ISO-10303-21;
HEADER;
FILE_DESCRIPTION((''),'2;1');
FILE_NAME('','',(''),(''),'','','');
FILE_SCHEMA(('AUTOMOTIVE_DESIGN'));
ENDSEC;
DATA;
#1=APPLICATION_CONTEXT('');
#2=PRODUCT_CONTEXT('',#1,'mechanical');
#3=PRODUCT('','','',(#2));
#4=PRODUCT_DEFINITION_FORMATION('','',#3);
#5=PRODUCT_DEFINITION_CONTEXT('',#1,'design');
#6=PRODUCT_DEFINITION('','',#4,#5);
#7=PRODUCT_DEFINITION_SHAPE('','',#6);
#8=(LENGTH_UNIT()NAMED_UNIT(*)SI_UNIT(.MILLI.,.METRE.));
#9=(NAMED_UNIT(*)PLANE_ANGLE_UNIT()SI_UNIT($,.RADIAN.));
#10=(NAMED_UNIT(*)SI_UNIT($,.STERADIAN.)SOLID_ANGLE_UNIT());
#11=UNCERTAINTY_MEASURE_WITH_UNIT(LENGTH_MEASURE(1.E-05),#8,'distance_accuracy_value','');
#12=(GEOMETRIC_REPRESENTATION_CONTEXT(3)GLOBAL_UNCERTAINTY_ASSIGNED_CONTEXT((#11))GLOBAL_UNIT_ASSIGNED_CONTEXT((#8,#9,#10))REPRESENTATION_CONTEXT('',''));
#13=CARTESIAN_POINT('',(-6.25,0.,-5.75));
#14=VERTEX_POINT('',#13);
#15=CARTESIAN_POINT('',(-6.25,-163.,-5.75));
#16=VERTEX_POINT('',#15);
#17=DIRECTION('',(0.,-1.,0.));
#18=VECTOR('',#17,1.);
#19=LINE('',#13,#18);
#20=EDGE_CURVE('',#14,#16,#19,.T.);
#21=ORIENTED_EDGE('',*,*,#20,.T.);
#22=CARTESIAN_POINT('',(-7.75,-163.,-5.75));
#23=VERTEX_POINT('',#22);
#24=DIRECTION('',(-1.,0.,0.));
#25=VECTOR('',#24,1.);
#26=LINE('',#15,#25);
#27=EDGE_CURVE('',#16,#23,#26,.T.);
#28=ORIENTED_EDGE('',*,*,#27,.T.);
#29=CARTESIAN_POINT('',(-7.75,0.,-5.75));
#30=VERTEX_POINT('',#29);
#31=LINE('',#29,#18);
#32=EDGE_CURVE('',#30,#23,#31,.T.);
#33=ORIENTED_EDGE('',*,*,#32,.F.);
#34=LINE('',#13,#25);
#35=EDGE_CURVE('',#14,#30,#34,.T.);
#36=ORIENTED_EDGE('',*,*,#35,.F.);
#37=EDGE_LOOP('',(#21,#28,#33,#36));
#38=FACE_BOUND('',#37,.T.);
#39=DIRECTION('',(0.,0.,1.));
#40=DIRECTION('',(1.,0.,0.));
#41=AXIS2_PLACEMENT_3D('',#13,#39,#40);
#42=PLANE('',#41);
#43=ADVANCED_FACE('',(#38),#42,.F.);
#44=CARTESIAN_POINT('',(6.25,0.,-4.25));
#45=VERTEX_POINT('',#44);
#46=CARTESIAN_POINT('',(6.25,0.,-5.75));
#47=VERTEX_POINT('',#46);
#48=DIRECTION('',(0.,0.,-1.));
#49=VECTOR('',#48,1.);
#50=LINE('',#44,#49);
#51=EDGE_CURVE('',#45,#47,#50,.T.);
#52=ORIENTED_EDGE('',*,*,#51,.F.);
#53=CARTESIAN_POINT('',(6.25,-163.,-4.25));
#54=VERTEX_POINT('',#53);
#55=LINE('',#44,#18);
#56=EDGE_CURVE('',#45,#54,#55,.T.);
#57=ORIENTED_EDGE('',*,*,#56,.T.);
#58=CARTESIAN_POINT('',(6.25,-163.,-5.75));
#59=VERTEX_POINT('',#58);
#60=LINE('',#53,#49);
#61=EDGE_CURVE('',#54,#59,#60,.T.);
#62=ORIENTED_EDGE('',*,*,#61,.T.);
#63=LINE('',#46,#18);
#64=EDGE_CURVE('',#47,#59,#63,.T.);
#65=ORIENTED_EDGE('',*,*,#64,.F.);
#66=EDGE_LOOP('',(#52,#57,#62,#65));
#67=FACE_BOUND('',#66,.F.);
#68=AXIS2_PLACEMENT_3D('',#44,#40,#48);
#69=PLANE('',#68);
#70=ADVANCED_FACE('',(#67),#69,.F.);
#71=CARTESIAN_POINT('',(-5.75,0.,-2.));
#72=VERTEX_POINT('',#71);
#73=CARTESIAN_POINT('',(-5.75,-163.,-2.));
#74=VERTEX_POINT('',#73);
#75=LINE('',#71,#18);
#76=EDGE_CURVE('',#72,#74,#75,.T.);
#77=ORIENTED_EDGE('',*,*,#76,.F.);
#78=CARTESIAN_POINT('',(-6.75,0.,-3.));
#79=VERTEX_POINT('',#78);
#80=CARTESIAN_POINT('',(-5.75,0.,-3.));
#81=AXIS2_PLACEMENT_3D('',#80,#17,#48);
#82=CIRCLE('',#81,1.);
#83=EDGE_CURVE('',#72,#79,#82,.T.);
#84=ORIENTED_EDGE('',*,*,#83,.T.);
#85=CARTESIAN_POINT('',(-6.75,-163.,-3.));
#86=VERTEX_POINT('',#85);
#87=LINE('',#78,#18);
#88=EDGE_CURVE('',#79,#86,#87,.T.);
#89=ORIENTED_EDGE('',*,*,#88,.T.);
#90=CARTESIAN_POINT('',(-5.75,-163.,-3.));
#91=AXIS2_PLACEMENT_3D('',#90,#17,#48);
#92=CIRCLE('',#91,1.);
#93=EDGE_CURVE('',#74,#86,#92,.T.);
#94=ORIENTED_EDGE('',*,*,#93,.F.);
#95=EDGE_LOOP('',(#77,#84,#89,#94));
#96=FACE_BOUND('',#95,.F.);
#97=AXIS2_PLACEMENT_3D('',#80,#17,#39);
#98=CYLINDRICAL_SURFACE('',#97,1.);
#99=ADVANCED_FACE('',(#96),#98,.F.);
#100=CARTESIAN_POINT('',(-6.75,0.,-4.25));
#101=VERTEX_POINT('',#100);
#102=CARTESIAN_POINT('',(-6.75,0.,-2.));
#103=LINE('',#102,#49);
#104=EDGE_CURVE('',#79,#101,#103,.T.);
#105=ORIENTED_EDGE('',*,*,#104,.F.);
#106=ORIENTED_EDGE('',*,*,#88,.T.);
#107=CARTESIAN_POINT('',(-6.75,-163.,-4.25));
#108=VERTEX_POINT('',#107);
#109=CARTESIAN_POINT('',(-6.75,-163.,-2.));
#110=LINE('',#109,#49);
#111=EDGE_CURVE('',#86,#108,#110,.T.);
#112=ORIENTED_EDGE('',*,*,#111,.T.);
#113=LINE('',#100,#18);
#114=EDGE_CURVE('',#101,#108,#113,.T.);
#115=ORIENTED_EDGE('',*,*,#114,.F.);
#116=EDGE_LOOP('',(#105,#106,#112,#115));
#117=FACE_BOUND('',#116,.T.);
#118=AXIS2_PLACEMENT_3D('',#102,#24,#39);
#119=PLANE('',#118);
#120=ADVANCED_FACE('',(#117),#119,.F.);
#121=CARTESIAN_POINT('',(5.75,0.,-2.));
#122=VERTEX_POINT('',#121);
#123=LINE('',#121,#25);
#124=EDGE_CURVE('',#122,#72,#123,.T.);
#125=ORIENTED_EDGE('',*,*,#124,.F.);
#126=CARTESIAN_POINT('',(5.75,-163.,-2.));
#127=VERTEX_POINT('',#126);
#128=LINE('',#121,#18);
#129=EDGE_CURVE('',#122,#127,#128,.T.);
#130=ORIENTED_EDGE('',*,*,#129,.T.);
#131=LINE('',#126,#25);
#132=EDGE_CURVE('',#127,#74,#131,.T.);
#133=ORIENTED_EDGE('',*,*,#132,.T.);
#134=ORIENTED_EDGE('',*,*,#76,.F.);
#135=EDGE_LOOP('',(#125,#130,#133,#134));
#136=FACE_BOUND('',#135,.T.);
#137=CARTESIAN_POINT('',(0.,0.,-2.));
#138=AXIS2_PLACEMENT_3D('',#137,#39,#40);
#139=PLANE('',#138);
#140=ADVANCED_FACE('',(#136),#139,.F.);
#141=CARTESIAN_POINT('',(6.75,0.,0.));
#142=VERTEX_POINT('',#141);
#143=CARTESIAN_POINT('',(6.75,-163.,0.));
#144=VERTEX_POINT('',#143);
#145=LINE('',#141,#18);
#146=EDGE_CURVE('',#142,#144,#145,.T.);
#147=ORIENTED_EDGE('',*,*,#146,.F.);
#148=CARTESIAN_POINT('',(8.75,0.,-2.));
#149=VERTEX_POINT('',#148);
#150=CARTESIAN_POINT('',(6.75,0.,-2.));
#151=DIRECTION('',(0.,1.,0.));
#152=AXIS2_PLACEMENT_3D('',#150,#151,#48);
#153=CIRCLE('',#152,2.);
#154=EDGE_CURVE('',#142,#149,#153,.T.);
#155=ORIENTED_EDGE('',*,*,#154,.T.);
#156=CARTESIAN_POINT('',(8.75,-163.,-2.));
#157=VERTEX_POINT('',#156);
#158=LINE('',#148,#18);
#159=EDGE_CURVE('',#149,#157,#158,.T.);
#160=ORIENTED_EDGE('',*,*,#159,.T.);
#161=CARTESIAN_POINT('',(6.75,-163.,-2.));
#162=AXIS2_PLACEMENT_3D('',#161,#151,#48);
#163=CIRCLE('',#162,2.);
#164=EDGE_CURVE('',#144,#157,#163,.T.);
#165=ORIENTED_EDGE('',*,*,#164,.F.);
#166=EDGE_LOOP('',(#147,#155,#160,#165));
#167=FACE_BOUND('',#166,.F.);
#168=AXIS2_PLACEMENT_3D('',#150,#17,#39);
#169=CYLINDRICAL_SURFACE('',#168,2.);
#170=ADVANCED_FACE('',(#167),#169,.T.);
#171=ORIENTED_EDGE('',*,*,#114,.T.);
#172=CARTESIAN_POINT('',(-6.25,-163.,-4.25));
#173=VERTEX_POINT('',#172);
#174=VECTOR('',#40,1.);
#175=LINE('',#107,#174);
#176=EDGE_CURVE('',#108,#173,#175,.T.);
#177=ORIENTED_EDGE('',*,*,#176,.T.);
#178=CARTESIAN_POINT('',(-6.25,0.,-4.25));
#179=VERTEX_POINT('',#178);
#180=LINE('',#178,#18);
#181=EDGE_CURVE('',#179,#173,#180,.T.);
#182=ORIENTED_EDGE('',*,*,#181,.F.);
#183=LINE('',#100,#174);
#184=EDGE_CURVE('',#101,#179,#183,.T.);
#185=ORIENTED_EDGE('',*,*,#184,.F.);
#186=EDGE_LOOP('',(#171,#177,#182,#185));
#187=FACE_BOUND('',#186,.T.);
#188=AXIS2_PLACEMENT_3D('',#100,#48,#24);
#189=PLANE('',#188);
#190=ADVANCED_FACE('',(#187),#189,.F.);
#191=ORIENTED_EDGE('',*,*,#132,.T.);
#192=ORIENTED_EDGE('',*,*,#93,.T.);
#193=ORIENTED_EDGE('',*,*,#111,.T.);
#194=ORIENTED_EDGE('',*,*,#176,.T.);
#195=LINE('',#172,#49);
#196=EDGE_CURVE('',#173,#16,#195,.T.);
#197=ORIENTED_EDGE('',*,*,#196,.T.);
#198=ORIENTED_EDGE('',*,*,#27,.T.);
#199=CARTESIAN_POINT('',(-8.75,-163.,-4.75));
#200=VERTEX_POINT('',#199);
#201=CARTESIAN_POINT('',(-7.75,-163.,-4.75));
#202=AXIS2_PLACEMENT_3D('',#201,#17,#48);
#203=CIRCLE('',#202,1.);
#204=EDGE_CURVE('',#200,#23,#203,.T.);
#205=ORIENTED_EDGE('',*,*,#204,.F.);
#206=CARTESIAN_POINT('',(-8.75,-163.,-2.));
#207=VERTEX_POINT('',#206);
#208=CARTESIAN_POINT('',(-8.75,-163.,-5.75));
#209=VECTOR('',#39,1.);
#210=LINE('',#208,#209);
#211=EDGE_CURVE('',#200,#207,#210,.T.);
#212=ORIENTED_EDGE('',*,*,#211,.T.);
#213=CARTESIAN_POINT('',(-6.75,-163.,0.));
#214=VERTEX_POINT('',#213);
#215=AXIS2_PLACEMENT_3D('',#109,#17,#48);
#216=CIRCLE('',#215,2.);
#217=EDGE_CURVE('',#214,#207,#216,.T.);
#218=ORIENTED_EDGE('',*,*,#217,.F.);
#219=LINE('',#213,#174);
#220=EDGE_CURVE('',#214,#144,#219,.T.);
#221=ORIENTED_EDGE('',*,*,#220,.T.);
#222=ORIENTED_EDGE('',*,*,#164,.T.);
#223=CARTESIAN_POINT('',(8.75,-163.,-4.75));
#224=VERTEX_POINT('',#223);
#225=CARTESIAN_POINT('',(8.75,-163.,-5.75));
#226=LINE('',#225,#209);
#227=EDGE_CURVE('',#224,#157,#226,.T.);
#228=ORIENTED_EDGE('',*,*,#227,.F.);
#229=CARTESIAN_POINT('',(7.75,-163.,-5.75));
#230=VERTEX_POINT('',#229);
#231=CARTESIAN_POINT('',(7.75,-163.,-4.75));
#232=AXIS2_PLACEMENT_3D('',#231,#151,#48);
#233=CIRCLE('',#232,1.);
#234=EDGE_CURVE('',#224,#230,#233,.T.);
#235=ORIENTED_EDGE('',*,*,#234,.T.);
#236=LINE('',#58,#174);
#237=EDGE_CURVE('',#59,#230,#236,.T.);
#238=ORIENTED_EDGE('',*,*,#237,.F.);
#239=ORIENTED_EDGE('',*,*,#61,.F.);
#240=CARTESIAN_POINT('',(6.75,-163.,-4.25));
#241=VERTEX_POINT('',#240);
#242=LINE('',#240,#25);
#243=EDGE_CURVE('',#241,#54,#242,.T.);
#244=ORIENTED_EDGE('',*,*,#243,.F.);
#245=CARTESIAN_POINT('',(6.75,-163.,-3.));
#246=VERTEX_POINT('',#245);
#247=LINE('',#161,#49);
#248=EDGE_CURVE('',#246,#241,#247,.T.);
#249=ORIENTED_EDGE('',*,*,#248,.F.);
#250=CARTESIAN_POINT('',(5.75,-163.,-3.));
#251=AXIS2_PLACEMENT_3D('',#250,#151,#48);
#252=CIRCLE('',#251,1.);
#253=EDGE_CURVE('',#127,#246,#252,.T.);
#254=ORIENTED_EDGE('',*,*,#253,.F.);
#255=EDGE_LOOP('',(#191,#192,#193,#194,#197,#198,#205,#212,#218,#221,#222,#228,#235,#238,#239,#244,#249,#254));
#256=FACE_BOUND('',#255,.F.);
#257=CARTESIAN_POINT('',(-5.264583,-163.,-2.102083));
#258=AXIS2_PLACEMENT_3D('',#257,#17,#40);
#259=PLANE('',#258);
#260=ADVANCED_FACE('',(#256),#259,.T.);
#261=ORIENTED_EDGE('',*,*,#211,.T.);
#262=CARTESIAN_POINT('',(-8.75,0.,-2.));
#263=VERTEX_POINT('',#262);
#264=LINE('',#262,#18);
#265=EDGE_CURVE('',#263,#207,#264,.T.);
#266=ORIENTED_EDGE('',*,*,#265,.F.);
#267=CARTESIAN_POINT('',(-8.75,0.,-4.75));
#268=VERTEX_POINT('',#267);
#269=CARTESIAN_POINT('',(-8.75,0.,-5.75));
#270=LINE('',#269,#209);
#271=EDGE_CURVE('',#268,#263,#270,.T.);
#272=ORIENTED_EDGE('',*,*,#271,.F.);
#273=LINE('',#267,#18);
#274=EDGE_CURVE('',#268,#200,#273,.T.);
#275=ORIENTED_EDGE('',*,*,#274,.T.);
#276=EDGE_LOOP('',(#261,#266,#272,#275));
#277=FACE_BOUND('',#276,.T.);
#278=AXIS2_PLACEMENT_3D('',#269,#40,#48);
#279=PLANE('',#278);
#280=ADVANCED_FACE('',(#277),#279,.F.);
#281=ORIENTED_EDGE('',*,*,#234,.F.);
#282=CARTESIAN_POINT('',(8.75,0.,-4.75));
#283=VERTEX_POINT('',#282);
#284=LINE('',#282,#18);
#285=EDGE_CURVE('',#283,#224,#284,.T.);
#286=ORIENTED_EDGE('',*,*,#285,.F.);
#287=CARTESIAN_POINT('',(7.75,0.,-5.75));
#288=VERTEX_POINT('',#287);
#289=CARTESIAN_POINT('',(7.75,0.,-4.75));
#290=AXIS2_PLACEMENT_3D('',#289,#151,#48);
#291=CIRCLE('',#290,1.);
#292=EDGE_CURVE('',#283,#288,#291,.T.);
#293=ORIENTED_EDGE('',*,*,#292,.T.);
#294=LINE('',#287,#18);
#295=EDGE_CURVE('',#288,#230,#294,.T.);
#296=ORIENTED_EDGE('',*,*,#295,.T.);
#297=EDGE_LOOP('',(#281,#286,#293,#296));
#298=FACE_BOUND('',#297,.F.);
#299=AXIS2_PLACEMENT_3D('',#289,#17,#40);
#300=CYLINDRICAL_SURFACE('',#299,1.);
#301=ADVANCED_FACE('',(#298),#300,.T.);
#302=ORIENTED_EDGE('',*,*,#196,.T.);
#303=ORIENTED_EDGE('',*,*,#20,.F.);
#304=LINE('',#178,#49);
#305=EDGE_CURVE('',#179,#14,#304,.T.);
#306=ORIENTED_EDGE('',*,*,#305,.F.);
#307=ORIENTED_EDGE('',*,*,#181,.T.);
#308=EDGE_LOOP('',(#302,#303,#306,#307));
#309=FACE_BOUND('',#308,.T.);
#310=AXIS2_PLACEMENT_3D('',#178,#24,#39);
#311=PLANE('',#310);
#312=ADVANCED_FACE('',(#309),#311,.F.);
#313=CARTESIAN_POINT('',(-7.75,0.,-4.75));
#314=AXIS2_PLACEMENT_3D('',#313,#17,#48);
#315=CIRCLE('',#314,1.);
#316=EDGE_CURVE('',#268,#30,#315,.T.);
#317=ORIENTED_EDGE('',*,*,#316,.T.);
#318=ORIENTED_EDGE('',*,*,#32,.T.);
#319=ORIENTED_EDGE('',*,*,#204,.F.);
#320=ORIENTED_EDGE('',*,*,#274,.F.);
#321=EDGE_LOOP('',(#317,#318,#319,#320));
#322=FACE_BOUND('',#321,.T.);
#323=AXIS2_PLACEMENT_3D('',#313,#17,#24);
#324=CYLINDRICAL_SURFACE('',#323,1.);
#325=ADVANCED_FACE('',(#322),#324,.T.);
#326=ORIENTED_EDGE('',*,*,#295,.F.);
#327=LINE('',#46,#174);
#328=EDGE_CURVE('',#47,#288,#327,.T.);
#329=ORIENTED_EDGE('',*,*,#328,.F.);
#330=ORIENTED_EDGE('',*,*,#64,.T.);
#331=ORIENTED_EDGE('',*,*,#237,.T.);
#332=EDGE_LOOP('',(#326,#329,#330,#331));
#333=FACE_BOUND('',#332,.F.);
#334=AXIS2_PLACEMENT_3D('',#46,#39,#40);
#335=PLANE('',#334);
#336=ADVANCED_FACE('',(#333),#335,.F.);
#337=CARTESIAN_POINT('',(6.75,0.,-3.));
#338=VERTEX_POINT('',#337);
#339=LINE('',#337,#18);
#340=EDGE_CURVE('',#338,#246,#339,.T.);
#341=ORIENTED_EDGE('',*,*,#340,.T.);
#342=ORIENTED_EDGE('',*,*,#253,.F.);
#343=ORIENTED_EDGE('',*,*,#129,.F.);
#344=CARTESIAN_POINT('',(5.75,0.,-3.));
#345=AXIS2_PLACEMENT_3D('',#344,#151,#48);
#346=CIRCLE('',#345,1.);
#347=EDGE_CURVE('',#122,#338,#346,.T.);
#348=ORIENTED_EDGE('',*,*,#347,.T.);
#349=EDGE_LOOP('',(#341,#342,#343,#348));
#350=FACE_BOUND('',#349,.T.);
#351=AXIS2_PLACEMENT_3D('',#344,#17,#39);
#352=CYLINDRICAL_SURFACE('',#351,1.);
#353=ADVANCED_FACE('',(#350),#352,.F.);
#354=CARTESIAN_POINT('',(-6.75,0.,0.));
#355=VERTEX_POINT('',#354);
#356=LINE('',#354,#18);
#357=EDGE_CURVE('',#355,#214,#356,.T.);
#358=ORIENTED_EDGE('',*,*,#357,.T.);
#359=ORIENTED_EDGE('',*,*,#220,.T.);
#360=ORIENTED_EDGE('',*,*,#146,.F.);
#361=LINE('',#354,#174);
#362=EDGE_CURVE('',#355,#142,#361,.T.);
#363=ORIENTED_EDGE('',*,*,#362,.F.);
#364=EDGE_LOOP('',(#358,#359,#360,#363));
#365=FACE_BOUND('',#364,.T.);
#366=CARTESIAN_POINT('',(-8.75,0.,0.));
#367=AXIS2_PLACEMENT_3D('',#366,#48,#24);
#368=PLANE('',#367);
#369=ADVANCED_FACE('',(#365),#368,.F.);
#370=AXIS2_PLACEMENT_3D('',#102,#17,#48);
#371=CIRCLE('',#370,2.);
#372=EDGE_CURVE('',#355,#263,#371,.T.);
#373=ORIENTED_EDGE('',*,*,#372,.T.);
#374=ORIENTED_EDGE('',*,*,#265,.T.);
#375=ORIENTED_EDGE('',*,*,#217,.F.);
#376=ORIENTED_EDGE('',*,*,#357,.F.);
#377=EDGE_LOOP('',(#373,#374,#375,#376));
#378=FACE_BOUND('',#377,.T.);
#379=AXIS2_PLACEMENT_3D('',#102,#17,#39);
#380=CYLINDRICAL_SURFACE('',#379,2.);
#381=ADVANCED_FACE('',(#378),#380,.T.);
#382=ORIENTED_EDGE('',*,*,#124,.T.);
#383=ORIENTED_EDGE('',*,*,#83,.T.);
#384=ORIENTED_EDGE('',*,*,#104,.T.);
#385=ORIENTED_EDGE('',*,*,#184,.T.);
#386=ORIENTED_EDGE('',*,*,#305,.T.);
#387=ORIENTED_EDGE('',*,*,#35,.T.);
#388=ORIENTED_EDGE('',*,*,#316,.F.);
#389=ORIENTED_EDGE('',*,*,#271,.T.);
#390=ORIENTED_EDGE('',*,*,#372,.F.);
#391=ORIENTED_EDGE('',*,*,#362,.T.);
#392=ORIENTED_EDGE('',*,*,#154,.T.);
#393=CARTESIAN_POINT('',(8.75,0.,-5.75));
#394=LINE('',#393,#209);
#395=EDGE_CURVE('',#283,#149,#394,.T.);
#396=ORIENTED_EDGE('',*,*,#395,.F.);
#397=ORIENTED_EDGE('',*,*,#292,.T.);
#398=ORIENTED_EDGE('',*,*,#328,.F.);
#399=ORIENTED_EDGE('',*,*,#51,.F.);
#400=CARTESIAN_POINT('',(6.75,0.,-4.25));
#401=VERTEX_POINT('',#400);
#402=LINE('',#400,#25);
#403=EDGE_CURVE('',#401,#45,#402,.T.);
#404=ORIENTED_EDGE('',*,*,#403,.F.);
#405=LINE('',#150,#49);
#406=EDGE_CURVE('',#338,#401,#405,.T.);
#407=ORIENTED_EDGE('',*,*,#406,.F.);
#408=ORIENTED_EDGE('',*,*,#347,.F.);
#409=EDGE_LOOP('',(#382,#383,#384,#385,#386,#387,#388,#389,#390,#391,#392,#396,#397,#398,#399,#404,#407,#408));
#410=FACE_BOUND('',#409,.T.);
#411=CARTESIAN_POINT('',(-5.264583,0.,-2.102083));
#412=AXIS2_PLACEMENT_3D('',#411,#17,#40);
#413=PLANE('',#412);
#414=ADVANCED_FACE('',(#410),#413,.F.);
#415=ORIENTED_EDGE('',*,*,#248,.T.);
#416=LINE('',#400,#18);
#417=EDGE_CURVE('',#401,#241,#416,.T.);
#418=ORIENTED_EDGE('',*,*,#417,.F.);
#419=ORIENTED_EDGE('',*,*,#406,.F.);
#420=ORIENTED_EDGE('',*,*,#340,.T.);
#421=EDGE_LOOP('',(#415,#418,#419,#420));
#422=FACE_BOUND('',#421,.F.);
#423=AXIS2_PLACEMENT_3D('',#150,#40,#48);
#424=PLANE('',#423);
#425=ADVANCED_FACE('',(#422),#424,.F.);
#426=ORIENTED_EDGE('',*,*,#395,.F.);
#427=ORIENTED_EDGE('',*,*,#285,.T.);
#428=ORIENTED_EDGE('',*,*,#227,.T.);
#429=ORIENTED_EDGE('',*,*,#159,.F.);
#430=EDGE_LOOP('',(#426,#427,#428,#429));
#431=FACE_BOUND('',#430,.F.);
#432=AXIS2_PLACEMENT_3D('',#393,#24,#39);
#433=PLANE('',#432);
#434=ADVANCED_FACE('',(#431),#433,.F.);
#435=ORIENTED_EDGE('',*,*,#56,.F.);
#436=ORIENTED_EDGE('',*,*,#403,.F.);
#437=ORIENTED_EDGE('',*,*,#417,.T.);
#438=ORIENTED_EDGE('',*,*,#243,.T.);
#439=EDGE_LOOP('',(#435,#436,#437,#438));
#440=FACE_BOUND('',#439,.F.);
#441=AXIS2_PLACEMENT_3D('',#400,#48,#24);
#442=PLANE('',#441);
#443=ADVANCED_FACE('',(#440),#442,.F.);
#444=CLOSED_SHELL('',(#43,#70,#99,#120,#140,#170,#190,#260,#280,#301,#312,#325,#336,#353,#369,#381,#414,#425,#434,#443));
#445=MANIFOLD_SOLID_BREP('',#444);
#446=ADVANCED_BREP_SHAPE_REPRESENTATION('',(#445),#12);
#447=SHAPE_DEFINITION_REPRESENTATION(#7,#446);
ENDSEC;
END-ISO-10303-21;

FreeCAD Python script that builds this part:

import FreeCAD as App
import Part
import Sketcher
from FreeCAD import Vector


def edges_at(feature, points):
    """Names of the edges that pass closest to the given points."""
    edges = feature.Shape.Edges
    near = lambda p: min(range(len(edges)), key=lambda i: edges[i].distToShape(Part.Vertex(*p))[0])
    return sorted({f"Edge{near(p) + 1}" for p in points})


def add_polygon(sketch, points):
    """Adds a closed chain of lines whose ends are joined by coincident constraints."""
    first, n = sketch.GeometryCount, len(points)
    for a, b in zip(points, points[1:] + points[:1]):
        sketch.addGeometry(Part.LineSegment(App.Vector(*a, 0), App.Vector(*b, 0)), False)
    for i in range(n):
        sketch.addConstraint(Sketcher.Constraint("Coincident", first + i, 2, first + (i + 1) % n, 1))

doc = App.newDocument("Part")
body = doc.addObject("PartDesign::Body", "Body")

sketch1 = doc.addObject("Sketcher::SketchObject", "Sketch")
body.addObject(sketch1)
sketch1.AttachmentSupport = (doc.XZ_Plane, [""])
sketch1.MapMode = "FlatFace"
add_polygon(sketch1, [(8.75, 0), (0, 0), (0, -2), (6.75, -2), (6.75, -4.25), (6.25, -4.25), (6.25, -5.75), (8.75, -5.75)])
sketch1.addConstraint([
    Sketcher.Constraint("Horizontal", 0),
    Sketcher.Constraint("Vertical", 1),
    Sketcher.Constraint("Horizontal", 2),
    Sketcher.Constraint("Vertical", 3),
    Sketcher.Constraint("Horizontal", 4),
    Sketcher.Constraint("Vertical", 5),
    Sketcher.Constraint("Horizontal", 6),
    Sketcher.Constraint("Vertical", 7),
    Sketcher.Constraint("Coincident", 0, 2, -1, 1),
    Sketcher.Constraint("DistanceY", 1, 2, 1, 1, 2.0),
    Sketcher.Constraint("DistanceX", 4, 2, 4, 1, 0.5),
    Sketcher.Constraint("DistanceX", 6, 1, 6, 2, 2.5),
    Sketcher.Constraint("DistanceY", 5, 2, 5, 1, 1.5),
    Sketcher.Constraint("DistanceX", 0, 2, 0, 1, 8.75),
    Sketcher.Constraint("DistanceY", 3, 2, 3, 1, 2.25),
])
pad1 = doc.addObject("PartDesign::Pad", "Pad")
body.addObject(pad1)
pad1.Profile = sketch1
pad1.Length = 163
doc.recompute()

fillet = doc.addObject("PartDesign::Fillet", "Fillet")
body.addObject(fillet)
fillet.Base = (pad1, edges_at(pad1, [(8.75, -81.5, 0)]))
fillet.Radius = 2
doc.recompute()

fillet2 = doc.addObject("PartDesign::Fillet", "Fillet001")
body.addObject(fillet2)
fillet2.Base = (fillet, edges_at(fillet, [(6.75, -81.5, -2)]))
fillet2.Radius = 1
doc.recompute()

fillet3 = doc.addObject("PartDesign::Fillet", "Fillet002")
body.addObject(fillet3)
fillet3.Base = (fillet2, edges_at(fillet2, [(8.75, -81.5, -5.75)]))
fillet3.Radius = 1
body2 = doc.addObject("PartDesign::Body", "Body001")
doc.recompute()

body2.BaseFeature = body
doc.recompute()

mirroring = doc.addObject("Part::Mirroring", "Mirroring")
mirroring.Source = body
mirroring.Base = Vector(0, 0, 0)
mirroring.Normal = Vector(1, 0, 0)
body3 = doc.addObject("PartDesign::Body", "Body002")
body3.BaseFeature = mirroring
boolean = doc.addObject("PartDesign::Boolean", "Boolean")
body2.addObject(boolean)
boolean.Type = "Fuse"
boolean.addObjects([body3])
doc.recompute()
mirroring.Visibility = False

doc.recompute()
